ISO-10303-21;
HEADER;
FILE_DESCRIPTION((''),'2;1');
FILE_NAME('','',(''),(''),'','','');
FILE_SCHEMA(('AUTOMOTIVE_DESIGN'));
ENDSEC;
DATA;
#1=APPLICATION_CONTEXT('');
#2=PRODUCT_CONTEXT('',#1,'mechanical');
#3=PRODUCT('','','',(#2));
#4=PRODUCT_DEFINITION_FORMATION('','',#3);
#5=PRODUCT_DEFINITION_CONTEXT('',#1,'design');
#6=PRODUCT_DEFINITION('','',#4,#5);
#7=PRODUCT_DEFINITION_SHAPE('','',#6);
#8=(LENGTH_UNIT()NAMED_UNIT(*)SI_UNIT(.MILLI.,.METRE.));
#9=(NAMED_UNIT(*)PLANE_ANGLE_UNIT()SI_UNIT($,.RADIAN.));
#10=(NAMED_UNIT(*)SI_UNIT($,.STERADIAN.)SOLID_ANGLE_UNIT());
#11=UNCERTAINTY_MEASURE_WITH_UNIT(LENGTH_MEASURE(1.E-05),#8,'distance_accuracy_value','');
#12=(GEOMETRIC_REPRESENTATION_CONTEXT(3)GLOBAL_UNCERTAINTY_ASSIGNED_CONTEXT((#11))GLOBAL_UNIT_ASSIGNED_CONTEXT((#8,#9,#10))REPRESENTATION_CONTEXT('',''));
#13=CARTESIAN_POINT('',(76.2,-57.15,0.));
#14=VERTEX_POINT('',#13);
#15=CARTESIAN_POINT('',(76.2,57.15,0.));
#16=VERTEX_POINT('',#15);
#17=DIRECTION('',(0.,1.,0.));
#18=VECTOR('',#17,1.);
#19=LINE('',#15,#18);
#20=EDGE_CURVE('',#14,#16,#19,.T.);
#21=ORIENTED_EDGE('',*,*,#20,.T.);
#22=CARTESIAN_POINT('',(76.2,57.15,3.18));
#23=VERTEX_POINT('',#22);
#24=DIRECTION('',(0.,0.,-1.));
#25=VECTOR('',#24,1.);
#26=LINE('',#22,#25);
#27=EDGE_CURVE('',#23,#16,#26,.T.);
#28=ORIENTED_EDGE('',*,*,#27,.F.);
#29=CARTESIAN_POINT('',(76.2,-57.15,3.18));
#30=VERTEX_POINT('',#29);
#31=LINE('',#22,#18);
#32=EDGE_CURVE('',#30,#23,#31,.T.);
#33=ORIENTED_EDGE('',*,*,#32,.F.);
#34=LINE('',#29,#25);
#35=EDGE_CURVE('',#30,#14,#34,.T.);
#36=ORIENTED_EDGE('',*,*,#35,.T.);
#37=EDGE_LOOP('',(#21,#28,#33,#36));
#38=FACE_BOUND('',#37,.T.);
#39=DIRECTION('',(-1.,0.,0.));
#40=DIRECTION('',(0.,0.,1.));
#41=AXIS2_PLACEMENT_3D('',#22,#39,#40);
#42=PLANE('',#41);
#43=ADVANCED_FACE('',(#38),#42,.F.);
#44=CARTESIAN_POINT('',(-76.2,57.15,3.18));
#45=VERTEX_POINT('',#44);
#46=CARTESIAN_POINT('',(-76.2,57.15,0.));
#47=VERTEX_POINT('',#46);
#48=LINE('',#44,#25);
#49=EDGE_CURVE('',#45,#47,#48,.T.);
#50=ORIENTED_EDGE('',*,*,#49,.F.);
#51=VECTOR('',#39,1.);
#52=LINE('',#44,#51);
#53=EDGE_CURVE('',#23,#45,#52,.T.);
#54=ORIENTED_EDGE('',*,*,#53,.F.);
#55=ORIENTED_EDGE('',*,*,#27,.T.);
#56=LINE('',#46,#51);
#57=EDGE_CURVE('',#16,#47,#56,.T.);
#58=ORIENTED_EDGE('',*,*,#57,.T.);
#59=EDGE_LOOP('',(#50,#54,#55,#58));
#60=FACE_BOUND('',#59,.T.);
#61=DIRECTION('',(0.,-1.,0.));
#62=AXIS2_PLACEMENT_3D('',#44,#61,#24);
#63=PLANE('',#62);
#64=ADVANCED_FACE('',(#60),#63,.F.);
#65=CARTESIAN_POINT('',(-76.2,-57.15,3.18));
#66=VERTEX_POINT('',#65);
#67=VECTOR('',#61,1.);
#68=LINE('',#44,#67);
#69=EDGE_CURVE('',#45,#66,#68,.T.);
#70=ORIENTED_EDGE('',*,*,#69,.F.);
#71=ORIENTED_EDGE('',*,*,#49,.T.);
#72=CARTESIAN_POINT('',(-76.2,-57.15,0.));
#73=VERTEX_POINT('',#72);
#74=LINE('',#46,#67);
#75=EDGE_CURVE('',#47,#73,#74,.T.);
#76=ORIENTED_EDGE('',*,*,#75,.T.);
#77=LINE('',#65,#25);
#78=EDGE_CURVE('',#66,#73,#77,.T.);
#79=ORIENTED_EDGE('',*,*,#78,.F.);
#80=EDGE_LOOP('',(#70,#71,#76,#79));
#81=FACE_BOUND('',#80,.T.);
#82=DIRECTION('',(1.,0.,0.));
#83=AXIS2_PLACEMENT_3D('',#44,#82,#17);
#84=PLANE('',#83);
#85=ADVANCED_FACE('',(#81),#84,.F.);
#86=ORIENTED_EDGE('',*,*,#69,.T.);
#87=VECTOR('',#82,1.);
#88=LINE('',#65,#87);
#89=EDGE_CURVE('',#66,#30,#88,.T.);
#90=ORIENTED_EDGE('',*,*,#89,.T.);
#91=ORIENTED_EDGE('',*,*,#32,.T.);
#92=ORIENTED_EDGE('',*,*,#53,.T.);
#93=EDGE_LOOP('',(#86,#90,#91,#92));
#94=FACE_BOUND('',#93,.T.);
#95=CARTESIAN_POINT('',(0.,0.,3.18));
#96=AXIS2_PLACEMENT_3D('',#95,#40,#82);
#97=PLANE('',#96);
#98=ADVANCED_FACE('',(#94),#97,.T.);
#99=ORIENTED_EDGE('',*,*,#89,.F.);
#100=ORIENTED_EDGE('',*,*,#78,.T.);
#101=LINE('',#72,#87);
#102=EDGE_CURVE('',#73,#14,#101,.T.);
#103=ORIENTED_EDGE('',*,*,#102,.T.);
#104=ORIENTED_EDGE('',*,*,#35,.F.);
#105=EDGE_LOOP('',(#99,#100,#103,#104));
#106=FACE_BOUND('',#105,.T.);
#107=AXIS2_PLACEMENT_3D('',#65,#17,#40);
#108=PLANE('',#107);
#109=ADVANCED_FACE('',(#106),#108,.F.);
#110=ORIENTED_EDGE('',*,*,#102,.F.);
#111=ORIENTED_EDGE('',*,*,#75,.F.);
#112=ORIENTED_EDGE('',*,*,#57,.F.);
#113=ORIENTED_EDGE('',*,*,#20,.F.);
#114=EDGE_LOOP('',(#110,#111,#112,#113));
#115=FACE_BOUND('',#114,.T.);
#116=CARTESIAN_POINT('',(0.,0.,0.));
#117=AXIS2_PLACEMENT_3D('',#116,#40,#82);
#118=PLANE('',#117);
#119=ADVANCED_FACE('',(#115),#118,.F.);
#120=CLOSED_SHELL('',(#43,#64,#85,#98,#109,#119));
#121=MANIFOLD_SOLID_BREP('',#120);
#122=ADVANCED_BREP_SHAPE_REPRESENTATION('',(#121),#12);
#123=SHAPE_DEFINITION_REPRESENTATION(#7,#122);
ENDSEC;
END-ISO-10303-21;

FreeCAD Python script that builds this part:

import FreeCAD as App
import Part
import Sketcher
Q = App.Units.Quantity


def add_polygon(sketch, points):
    """Adds a closed chain of lines whose ends are joined by coincident constraints."""
    first, n = sketch.GeometryCount, len(points)
    for a, b in zip(points, points[1:] + points[:1]):
        sketch.addGeometry(Part.LineSegment(App.Vector(*a, 0), App.Vector(*b, 0)), False)
    for i in range(n):
        sketch.addConstraint(Sketcher.Constraint("Coincident", first + i, 2, first + (i + 1) % n, 1))

doc = App.newDocument("Part")
params = doc.addObject("Spreadsheet::Sheet", "Params")
for row, (alias, value) in enumerate([
    ("sketch1_width", "6 in"),
    ("sketch1_height", "4.5 in"),
    ("pad1_length", "3.18 mm"),
], start=1):
    params.set(f"A{row}", alias)
    params.set(f"B{row}", "=" + value)
    params.setAlias(f"B{row}", alias)

body = doc.addObject("PartDesign::Body", "Body")

# Sketch on XY plane
sketch1 = body.newObject("Sketcher::SketchObject", "Sketch")
sketch1.AttachmentSupport = (doc.getObject("XY_Plane"), [""])
sketch1.MapMode = "FlatFace"
add_polygon(sketch1, [(-76.2, 57.15), (-76.2, -57.15), (76.2, -57.15), (76.2, 57.15)])  # lines 0-3
sketch1.addConstraint([
    Sketcher.Constraint("Vertical", 0),
    Sketcher.Constraint("Horizontal", 1),
    Sketcher.Constraint("Vertical", 2),
    Sketcher.Constraint("Horizontal", 3),
    Sketcher.Constraint("Symmetric", 0, 2, 2, 2, -1, 1),
    Sketcher.Constraint("DistanceX", 1, 1, 1, 2, Q("6 in")),
    Sketcher.Constraint("DistanceY", 0, 2, 0, 1, Q("4.5 in")),
])
sketch1.setExpression("Constraints[9]", "Params.sketch1_width")
sketch1.setExpression("Constraints[10]", "Params.sketch1_height")
pad1 = body.newObject("PartDesign::Pad", "Pad")
pad1.Profile = sketch1
pad1.setExpression("Length", "Params.pad1_length")

doc.recompute()
